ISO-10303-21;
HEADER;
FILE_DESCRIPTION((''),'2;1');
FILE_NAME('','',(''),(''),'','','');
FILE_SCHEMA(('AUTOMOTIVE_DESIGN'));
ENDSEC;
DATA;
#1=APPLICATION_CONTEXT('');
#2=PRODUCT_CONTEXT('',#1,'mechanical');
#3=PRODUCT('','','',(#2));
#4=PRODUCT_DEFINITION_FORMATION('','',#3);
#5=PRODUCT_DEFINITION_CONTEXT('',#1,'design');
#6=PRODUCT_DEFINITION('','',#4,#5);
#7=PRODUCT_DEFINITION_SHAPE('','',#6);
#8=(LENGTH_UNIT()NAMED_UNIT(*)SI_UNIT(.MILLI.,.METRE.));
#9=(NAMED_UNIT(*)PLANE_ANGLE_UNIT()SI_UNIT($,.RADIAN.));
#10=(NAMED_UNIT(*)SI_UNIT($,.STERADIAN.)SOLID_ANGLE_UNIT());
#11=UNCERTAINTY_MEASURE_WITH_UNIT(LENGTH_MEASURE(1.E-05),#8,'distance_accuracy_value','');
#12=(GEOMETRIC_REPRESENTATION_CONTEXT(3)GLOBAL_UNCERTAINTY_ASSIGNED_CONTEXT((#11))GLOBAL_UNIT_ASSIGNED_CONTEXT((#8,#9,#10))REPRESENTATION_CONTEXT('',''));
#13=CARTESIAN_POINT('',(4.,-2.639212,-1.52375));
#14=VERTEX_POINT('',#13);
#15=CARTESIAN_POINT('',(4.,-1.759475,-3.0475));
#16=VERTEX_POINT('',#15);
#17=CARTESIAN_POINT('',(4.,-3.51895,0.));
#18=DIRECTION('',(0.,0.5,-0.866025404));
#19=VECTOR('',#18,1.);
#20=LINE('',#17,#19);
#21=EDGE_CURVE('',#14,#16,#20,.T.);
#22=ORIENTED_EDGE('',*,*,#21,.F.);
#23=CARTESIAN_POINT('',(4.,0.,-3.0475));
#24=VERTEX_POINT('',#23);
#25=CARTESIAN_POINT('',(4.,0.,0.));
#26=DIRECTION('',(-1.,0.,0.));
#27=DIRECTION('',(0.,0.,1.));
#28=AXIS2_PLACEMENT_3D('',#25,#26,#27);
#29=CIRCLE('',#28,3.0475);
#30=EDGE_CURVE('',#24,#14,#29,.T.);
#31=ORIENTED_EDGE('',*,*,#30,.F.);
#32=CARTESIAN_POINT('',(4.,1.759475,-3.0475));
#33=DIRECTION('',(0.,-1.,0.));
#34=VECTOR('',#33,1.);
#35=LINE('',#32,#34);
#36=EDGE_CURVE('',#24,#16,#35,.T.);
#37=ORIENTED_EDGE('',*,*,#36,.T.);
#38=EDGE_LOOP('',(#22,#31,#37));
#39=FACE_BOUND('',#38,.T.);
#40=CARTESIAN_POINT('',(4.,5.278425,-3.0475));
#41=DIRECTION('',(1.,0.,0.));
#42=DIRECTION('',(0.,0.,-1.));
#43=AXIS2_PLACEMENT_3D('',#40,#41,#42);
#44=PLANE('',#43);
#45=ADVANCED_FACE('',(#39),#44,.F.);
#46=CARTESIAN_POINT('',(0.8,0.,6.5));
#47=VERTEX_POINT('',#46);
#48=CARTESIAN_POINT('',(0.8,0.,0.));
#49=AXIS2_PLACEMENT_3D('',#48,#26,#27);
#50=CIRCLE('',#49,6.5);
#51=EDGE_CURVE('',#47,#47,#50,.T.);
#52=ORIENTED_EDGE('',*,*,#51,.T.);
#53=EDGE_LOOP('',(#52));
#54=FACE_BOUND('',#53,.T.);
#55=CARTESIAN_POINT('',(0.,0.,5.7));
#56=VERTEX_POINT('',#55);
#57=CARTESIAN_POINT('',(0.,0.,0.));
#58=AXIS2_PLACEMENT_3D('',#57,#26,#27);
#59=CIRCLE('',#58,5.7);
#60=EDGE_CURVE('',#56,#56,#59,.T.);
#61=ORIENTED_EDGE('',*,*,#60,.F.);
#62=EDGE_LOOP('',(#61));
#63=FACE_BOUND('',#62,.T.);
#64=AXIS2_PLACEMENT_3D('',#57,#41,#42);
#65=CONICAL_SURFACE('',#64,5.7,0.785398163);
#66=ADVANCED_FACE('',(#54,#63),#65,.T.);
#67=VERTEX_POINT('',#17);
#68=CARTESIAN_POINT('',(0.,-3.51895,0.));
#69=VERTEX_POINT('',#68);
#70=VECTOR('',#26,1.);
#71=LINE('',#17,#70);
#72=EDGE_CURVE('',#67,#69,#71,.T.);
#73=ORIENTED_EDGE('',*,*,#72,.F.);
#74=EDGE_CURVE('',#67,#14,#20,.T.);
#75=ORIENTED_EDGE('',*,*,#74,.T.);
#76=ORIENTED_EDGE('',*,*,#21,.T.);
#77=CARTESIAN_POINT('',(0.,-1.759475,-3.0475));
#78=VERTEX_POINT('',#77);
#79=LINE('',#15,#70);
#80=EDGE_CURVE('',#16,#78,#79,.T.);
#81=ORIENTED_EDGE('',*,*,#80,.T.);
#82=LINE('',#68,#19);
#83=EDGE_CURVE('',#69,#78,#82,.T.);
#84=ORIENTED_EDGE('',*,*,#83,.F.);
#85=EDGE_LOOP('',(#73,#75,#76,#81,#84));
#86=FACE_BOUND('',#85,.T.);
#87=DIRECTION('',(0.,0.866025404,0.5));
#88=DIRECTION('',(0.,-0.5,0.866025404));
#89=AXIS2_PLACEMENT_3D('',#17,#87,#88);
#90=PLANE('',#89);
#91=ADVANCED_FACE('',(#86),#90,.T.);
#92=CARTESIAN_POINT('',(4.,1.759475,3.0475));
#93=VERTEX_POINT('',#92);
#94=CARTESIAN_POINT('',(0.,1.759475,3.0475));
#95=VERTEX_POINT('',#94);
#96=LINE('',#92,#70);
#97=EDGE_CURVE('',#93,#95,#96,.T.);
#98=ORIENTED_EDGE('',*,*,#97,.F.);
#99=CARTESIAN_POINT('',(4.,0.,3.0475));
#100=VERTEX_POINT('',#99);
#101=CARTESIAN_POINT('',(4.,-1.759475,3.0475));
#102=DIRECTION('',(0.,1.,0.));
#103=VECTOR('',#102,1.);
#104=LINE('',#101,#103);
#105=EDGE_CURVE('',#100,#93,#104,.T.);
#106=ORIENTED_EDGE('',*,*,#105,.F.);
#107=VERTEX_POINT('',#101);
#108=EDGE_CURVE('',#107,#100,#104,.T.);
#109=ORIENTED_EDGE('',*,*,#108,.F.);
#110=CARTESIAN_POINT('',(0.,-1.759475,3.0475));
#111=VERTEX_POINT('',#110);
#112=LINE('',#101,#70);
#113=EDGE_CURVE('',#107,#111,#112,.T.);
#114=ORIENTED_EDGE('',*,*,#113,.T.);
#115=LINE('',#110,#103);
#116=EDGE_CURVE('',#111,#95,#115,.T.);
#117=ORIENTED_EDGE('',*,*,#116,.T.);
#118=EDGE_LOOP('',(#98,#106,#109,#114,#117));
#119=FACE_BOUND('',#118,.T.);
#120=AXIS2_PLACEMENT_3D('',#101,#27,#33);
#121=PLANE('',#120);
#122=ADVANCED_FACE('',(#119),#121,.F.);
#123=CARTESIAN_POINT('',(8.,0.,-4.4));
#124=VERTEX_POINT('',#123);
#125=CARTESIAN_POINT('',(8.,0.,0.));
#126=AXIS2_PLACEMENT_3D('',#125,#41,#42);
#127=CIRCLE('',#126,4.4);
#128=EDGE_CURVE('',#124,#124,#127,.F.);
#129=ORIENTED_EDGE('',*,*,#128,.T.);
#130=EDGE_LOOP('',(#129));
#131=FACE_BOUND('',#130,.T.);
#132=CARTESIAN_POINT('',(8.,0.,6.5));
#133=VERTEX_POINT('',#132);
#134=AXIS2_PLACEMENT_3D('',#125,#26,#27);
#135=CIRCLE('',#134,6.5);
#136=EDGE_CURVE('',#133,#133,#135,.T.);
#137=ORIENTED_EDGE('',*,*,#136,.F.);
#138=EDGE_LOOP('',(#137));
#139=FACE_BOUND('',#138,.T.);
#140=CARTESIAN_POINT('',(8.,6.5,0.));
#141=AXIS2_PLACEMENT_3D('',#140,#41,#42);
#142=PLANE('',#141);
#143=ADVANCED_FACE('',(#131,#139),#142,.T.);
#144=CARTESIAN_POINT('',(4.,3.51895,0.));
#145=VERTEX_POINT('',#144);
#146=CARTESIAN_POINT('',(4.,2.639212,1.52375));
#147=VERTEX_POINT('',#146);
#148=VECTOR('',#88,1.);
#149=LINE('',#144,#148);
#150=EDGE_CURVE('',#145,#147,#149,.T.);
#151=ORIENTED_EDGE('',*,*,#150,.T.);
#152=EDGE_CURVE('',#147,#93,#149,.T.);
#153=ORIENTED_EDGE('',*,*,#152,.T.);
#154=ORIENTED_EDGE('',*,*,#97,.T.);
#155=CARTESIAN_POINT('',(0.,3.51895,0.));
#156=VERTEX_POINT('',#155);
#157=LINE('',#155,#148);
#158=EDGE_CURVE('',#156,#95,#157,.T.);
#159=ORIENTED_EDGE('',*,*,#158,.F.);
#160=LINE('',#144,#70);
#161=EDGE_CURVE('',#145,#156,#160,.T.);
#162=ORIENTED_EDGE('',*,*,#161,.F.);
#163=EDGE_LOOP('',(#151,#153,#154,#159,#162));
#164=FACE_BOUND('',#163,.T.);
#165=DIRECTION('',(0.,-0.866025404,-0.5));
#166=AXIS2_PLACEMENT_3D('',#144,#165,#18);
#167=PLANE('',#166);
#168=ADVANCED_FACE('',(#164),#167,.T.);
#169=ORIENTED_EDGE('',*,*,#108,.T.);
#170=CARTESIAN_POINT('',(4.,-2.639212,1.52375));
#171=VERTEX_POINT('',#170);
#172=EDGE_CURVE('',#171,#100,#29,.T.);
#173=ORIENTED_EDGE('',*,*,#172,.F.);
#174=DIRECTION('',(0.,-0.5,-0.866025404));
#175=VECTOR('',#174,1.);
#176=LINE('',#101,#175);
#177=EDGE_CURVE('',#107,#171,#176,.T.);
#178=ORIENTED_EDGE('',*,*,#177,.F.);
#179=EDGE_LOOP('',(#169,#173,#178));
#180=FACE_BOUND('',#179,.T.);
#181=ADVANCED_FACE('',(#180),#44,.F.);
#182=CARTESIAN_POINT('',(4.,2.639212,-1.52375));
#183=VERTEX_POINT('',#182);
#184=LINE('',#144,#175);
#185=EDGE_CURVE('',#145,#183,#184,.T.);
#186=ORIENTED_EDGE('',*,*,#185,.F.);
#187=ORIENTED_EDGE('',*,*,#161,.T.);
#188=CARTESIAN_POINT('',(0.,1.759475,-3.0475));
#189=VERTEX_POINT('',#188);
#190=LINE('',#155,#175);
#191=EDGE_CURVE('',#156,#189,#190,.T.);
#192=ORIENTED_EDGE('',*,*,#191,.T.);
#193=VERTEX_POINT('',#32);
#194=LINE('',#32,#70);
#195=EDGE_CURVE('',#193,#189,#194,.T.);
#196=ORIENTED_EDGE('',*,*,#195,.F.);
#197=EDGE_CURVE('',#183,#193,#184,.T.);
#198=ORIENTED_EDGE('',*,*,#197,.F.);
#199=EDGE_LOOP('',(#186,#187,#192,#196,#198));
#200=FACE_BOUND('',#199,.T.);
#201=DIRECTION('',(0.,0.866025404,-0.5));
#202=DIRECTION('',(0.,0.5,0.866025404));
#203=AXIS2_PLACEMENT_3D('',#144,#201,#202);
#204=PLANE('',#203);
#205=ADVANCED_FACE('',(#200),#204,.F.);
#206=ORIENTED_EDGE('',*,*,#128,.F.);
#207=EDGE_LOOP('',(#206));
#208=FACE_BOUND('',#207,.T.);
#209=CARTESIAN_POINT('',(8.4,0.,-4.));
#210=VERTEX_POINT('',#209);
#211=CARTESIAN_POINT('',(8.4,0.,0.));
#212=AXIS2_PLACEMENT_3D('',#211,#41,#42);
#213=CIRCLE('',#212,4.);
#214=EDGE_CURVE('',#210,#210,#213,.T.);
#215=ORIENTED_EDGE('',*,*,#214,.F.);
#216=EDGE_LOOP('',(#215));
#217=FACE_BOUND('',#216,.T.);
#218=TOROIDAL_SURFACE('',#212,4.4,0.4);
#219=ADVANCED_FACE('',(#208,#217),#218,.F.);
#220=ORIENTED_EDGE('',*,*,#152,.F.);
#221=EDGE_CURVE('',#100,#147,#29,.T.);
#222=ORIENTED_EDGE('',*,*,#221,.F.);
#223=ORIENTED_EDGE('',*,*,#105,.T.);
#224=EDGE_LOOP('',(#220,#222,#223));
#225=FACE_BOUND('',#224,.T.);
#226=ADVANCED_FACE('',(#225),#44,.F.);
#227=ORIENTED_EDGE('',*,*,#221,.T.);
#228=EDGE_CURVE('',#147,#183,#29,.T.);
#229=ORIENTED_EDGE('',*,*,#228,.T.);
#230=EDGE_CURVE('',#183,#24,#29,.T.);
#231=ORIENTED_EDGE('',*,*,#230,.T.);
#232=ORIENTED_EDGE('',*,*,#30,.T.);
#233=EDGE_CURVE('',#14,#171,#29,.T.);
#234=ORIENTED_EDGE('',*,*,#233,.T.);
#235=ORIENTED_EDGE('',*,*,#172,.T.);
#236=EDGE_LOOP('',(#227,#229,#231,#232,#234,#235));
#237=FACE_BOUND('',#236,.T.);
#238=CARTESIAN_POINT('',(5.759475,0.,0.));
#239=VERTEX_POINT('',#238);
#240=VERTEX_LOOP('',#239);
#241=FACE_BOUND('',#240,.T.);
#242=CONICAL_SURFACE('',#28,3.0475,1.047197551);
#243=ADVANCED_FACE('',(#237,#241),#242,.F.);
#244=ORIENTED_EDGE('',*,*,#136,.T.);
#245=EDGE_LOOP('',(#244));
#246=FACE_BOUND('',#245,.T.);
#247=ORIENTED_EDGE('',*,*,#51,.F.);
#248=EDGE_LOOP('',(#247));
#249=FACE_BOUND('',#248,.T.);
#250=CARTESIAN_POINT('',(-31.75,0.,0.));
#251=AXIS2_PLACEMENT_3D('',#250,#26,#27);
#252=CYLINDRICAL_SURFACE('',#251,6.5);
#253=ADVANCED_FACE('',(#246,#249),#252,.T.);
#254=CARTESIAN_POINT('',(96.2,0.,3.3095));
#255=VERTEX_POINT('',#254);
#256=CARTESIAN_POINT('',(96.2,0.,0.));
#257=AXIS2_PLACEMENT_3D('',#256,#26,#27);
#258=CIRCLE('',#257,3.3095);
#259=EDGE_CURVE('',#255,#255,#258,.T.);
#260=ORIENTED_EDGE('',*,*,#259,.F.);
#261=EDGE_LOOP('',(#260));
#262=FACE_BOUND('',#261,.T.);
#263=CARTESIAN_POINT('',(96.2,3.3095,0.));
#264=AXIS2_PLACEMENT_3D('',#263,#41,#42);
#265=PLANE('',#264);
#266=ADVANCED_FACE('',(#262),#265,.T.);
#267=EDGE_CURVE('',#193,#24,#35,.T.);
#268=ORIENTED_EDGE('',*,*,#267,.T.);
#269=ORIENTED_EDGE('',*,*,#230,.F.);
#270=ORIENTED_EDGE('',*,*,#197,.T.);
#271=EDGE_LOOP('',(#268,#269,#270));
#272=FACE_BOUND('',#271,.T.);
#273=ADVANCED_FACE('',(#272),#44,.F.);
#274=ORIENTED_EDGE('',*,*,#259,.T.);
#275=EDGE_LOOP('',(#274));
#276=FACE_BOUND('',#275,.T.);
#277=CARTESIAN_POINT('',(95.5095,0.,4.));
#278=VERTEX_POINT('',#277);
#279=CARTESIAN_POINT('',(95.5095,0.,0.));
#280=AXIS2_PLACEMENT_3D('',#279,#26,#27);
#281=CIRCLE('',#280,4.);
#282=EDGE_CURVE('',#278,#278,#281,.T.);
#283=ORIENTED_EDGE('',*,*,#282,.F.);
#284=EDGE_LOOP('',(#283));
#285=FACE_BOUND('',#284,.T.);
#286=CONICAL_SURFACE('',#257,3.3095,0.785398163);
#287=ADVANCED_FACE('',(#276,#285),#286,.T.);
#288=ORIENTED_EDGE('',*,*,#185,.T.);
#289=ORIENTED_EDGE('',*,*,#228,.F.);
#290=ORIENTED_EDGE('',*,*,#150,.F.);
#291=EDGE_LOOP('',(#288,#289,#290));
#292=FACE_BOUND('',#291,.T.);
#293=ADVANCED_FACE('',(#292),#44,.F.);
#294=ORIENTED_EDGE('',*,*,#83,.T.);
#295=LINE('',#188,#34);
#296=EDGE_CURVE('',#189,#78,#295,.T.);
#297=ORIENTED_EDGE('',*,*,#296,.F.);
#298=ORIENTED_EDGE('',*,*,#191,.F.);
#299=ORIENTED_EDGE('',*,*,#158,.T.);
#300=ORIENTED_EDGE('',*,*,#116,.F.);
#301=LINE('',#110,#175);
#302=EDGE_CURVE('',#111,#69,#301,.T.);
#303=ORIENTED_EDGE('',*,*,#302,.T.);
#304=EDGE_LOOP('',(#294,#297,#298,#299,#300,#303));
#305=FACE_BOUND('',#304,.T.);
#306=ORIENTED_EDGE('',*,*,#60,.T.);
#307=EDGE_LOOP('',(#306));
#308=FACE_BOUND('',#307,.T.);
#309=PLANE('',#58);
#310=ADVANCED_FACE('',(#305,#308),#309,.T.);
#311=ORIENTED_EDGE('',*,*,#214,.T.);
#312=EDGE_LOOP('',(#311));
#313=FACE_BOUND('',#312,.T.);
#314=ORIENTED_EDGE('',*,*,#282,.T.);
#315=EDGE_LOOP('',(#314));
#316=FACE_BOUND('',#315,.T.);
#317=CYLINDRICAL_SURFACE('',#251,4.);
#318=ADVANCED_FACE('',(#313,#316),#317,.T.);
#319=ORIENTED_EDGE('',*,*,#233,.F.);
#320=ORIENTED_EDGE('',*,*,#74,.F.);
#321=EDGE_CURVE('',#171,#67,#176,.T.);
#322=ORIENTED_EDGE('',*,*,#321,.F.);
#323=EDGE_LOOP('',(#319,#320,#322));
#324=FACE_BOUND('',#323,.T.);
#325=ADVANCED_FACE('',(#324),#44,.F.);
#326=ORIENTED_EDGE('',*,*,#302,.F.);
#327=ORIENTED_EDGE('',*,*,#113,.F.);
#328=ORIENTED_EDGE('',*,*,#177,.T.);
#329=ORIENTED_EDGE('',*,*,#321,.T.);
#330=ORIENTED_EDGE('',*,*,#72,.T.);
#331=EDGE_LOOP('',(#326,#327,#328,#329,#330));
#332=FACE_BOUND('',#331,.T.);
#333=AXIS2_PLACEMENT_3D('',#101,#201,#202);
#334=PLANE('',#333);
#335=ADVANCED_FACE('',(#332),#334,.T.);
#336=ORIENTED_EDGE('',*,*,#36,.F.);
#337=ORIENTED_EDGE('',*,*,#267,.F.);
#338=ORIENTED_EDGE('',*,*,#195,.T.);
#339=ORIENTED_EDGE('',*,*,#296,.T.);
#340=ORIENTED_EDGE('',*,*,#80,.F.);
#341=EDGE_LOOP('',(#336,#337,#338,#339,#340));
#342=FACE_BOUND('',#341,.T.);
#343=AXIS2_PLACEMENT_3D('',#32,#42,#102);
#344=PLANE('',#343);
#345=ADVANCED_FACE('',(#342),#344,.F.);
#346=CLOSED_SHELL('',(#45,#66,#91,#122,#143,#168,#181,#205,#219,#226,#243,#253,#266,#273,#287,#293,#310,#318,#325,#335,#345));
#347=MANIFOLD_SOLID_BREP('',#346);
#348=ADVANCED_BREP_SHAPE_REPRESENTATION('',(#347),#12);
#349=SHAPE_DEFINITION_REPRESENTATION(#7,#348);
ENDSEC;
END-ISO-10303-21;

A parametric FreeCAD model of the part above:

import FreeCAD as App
import Part
import Sketcher
from FreeCAD import Vector
Q = App.Units.Quantity


def edges_at(feature, points):
    """Names of the edges that pass closest to the given points."""
    edges = feature.Shape.Edges
    near = lambda p: min(range(len(edges)), key=lambda i: edges[i].distToShape(Part.Vertex(*p))[0])
    return sorted({f"Edge{near(p) + 1}" for p in points})


def add_polygon(sketch, points):
    """Adds a closed chain of lines whose ends are joined by coincident constraints."""
    first, n = sketch.GeometryCount, len(points)
    for a, b in zip(points, points[1:] + points[:1]):
        sketch.addGeometry(Part.LineSegment(App.Vector(*a, 0), App.Vector(*b, 0)), False)
    for i in range(n):
        sketch.addConstraint(Sketcher.Constraint("Coincident", first + i, 2, first + (i + 1) % n, 1))

doc = App.newDocument("Part")
body = doc.addObject("PartDesign::Body", "Body")

sketch1 = body.newObject("Sketcher::SketchObject", "Sketch")
sketch1.AttachmentSupport = (doc.getObject("XY_Plane"), [""])
sketch1.MapMode = "FlatFace"
add_polygon(sketch1, [(0, 5.7), (0, 0), (96.2, 0), (96.2, 3.3095), (95.5095, 4), (8, 4), (8, 6.5), (0.8, 6.5)])
sketch1.addConstraint([
    Sketcher.Constraint("Vertical", 0),
    Sketcher.Constraint("Horizontal", 1),
    Sketcher.Constraint("Vertical", 2),
    Sketcher.Constraint("Horizontal", 4),
    Sketcher.Constraint("Vertical", 5),
    Sketcher.Constraint("Horizontal", 6),
    Sketcher.Constraint("Coincident", 0, 2, -1, 1),
    Sketcher.Constraint("Perpendicular", 3, 7),
    Sketcher.Constraint("Angle", 3, Q("135 deg")),
    Sketcher.Constraint("DistanceX", 1, 1, 1, 2, 96.2),
    Sketcher.Constraint("DistanceX", 6, 2, 6, 1, 7.2),
    Sketcher.Constraint("DistanceY", 0, 2, 0, 1, 5.7),
    Sketcher.Constraint("DistanceY", 5, 1, 5, 2, 2.5),
    Sketcher.Constraint("DistanceY", -1, 1, 3, 2, 4.0),
    Sketcher.Constraint("DistanceX", 4, 2, 4, 1, 87.5095),
])
revolution = body.newObject("PartDesign::Revolution", "Revolution")
revolution.Profile = sketch1
revolution.ReferenceAxis = (sketch1, ["H_Axis"])
revolution.Angle = 360
doc.recompute()

fillet = body.newObject("PartDesign::Fillet", "Fillet")
fillet.Base = (revolution, edges_at(revolution, [(8, 0, -4)]))
fillet.Radius = 0.4

sketch2 = body.newObject("Sketcher::SketchObject", "Sketch001")
sketch2.AttachmentSupport = (doc.getObject("XY_Plane"), [""])
sketch2.MapMode = "FlatFace"
add_polygon(sketch2, [(4, 3.0475), (0, 3.0475), (0, 0), (5.759475, 0)])
sketch2.addConstraint([
    Sketcher.Constraint("Horizontal", 0),
    Sketcher.Constraint("Vertical", 1),
    Sketcher.Constraint("Horizontal", 2),
    Sketcher.Constraint("Coincident", 1, 2, -1, 1),
    Sketcher.Constraint("DistanceX", 0, 2, 0, 1, 4.0),
    Sketcher.Constraint("Angle", 3, Q("120 deg")),
    Sketcher.Constraint("DistanceY", 1, 2, 1, 1, 3.0475),
])
groove = body.newObject("PartDesign::Groove", "Groove")
groove.Profile = sketch2
groove.ReferenceAxis = (sketch2, ["H_Axis"])
groove.Angle = 360

sketch3 = body.newObject("Sketcher::SketchObject", "Sketch002")
sketch3.AttachmentSupport = (doc.getObject("YZ_Plane"), [""])
sketch3.MapMode = "FlatFace"
add_polygon(sketch3, [(3.51895, 0), (1.759475, -3.0475), (-1.759475, -3.0475), (-3.51895, 0), (-1.759475, 3.0475), (1.759475, 3.0475)])
sketch3.addConstraint([
    Sketcher.Constraint("Horizontal", 1),
    Sketcher.Constraint("Horizontal", 4),
    Sketcher.Constraint("Symmetric", 0, 2, 3, 2, -1, 1),
    Sketcher.Constraint("Symmetric", 2, 2, 5, 2, -1, 1),
    Sketcher.Constraint("PointOnObject", 2, 2, -1),
    Sketcher.Constraint("Parallel", 2, 5),
    Sketcher.Constraint("Vertical", 1, 2, 3, 2),
    Sketcher.Constraint("Angle", 0, Q("-120 deg")),
    Sketcher.Constraint("DistanceY", 1, 2, 3, 2, 6.095),
    Sketcher.Constraint("DistanceX", 1, 2, 1, 1, 3.51895),
])
pocket1 = body.newObject("PartDesign::Pocket", "Pocket")
pocket1.Profile = sketch3
pocket1.Length = 4
pocket1.Reversed = True

doc.recompute()
